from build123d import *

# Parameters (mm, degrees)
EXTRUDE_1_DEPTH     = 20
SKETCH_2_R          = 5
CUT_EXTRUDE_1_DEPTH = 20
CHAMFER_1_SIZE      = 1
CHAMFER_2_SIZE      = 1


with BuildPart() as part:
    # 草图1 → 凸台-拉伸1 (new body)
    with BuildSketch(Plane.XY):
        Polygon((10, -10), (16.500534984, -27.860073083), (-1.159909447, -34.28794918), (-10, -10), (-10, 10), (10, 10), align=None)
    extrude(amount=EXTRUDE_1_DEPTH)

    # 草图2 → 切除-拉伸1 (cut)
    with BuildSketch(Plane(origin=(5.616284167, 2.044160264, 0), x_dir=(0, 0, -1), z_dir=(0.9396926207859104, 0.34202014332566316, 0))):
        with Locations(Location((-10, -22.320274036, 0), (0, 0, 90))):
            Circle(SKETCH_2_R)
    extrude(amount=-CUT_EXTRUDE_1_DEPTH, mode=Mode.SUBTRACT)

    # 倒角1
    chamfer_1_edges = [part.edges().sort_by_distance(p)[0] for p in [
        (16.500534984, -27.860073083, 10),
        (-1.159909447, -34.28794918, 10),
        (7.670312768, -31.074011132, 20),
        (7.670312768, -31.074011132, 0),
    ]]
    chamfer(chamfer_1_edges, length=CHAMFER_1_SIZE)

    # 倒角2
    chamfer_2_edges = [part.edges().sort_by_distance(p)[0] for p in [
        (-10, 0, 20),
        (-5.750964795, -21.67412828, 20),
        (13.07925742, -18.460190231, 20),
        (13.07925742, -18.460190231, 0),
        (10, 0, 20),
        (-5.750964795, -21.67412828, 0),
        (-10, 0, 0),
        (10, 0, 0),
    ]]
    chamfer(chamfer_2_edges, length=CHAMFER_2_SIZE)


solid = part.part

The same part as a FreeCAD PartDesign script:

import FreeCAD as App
import Part
import Sketcher
from FreeCAD import Vector
Q = App.Units.Quantity


def edges_at(feature, points):
    """Names of the edges that pass closest to the given points."""
    edges = feature.Shape.Edges
    near = lambda p: min(range(len(edges)), key=lambda i: edges[i].distToShape(Part.Vertex(*p))[0])
    return sorted({f"Edge{near(p) + 1}" for p in points})


def add_polygon(sketch, points):
    """Adds a closed chain of lines whose ends are joined by coincident constraints."""
    first, n = sketch.GeometryCount, len(points)
    for a, b in zip(points, points[1:] + points[:1]):
        sketch.addGeometry(Part.LineSegment(App.Vector(*a, 0), App.Vector(*b, 0)), False)
    for i in range(n):
        sketch.addConstraint(Sketcher.Constraint("Coincident", first + i, 2, first + (i + 1) % n, 1))

doc = App.newDocument("Part")
body = doc.addObject("PartDesign::Body", "Body")

sketch1 = doc.addObject("Sketcher::SketchObject", "Sketch")
body.addObject(sketch1)
sketch1.AttachmentSupport = (doc.XY_Plane, [""])
sketch1.MapMode = "FlatFace"
add_polygon(sketch1, [(17, -28), (10, -10), (10, 10), (-10, 10), (-10, -10), (-1, -34)])
sketch1.addConstraint(Sketcher.Constraint("Vertical", 1))
sketch1.addConstraint(Sketcher.Constraint("Horizontal", 2))
sketch1.addConstraint(Sketcher.Constraint("Vertical", 3))
sketch1.addConstraint(Sketcher.Constraint("Symmetric", 0, 2, 2, 2, -1, 1))
sketch1.addConstraint(Sketcher.Constraint("Parallel", 0, 4))
sketch1.addConstraint(Sketcher.Constraint("Perpendicular", 4, 5))
sketch1.addConstraint(Sketcher.Constraint("Horizontal", 0, 2, 3, 2))
sketch1.addConstraint(Sketcher.Constraint("Equal", 2, 1))
sketch1.addConstraint(Sketcher.Constraint("DistanceX", 2, 2, 2, 1, 20.0))
sketch1.addConstraint(Sketcher.Constraint("Angle", 0, Q("110 deg")))
sketch1.addConstraint(Sketcher.Constraint("DistanceX", 4, 2, -1, 1, 1.159909))
pad1 = doc.addObject("PartDesign::Pad", "Pad")
body.addObject(pad1)
pad1.Profile = sketch1
pad1.Length = 20

sketch2 = doc.addObject("Sketcher::SketchObject", "Sketch001")
body.addObject(sketch2)
sketch2.Placement = App.Placement(Vector(5.616284, 2.04416, 0), App.Rotation(Vector(0, 0, -1), Vector(-0.342020143, 0.939692621, 0), Vector(0.939692621, 0.342020143, 0), "ZXY"))
sketch2.addGeometry(Part.Circle(Vector(-10, -22, 0), Vector(0, 0, 1), 5), False)
sketch2.addConstraint(Sketcher.Constraint("Diameter", 0, 10.0))
sketch2.addConstraint(Sketcher.Constraint("DistanceX", 0, 3, -1, 1, 10.0))
sketch2.addConstraint(Sketcher.Constraint("DistanceY", 0, 3, -1, 1, 22.320274))
pocket1 = doc.addObject("PartDesign::Pocket", "Pocket")
body.addObject(pocket1)
pocket1.Profile = sketch2
pocket1.Length = 20
doc.recompute()

chamfer = doc.addObject("PartDesign::Chamfer", "Chamfer")
body.addObject(chamfer)
chamfer.Base = (pocket1, edges_at(pocket1, [
    (16.501, -27.86, 10),
    (-1.16, -34.288, 10),
    (7.67, -31.074, 20),
    (7.67, -31.074, 0),
]))
chamfer.Size = 1
doc.recompute()

chamfer2 = doc.addObject("PartDesign::Chamfer", "Chamfer001")
body.addObject(chamfer2)
chamfer2.Base = (chamfer, edges_at(chamfer, [
    (-10, 0, 20),
    (-5.751, -21.674, 20),
    (13.079, -18.46, 20),
    (13.079, -18.46, 0),
    (10, 0, 20),
    (-5.751, -21.674, 0),
    (-10, 0, 0),
    (10, 0, 0),
]))
chamfer2.Size = 1

doc.recompute()
